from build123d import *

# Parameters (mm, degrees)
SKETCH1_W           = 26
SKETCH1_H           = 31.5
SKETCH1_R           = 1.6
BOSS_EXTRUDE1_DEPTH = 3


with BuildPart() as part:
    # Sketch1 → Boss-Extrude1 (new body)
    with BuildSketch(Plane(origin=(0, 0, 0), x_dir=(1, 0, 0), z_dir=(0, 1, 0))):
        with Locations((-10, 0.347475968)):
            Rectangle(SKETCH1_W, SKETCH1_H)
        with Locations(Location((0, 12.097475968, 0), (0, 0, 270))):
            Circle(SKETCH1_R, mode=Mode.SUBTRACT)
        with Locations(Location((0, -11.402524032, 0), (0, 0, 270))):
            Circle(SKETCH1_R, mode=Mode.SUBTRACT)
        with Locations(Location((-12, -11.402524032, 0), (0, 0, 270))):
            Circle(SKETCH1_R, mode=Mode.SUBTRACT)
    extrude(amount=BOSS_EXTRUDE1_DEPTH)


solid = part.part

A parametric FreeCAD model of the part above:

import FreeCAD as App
import Part
import Sketcher

V = App.Vector

doc = App.newDocument("Part")
body = doc.addObject("PartDesign::Body", "Body")

sketch1 = body.newObject("Sketcher::SketchObject", "Sketch")
sketch1.AttachmentSupport = (doc.getObject("XZ_Plane"), [""])
sketch1.MapMode = "FlatFace"
sketch1.addGeometry(Part.LineSegment(V(-23, -16.1, 0), V(-23, 15.4, 0)), False)
sketch1.addGeometry(Part.LineSegment(V(-23, 15.4, 0), V(3, 15.4, 0)), False)
sketch1.addGeometry(Part.LineSegment(V(3, 15.4, 0), V(3, -16.1, 0)), False)
sketch1.addGeometry(Part.LineSegment(V(3, -16.1, 0), V(-23, -16.1, 0)), False)
sketch1.addGeometry(Part.Circle(V(-12, 11.4, 0), V(0, 0, 1), 1.6), False)
sketch1.addGeometry(Part.Circle(V(0, 11.4, 0), V(0, 0, 1), 1.6), False)
sketch1.addGeometry(Part.Circle(V(0, -12.1, 0), V(0, 0, 1), 1.6), False)
sketch1.addConstraint(Sketcher.Constraint("Coincident", 0, 2, 1, 1))
sketch1.addConstraint(Sketcher.Constraint("Coincident", 1, 2, 2, 1))
sketch1.addConstraint(Sketcher.Constraint("Coincident", 2, 2, 3, 1))
sketch1.addConstraint(Sketcher.Constraint("Coincident", 3, 2, 0, 1))
sketch1.addConstraint(Sketcher.Constraint("Vertical", 0))
sketch1.addConstraint(Sketcher.Constraint("Horizontal", 1))
sketch1.addConstraint(Sketcher.Constraint("Vertical", 2))
sketch1.addConstraint(Sketcher.Constraint("Horizontal", 3))
sketch1.addConstraint(Sketcher.Constraint("Equal", 4, 5))
sketch1.addConstraint(Sketcher.Constraint("Equal", 5, 6))
sketch1.addConstraint(Sketcher.Constraint("PointOnObject", 5, 3, -2))
sketch1.addConstraint(Sketcher.Constraint("PointOnObject", 6, 3, -2))
sketch1.addConstraint(Sketcher.Constraint("Horizontal", 4, 3, 5, 3))
sketch1.addConstraint(Sketcher.Constraint("Diameter", 4, 3.2))
sketch1.addConstraint(Sketcher.Constraint("DistanceX", 1, 1, 1, 2, 26.0))
sketch1.addConstraint(Sketcher.Constraint("DistanceY", 0, 1, 0, 2, 31.5))
sketch1.addConstraint(Sketcher.Constraint("DistanceX", 4, 3, -1, 1, 12.0))
sketch1.addConstraint(Sketcher.Constraint("DistanceX", 0, 2, -1, 1, 23.0))
sketch1.addConstraint(Sketcher.Constraint("DistanceY", 4, 3, 0, 2, 4.0))
sketch1.addConstraint(Sketcher.Constraint("DistanceY", 2, 2, 6, 3, 4.0))
sketch1.addConstraint(Sketcher.Constraint("DistanceY", -1, 1, 4, 3, 11.402524))
pad1 = body.newObject("PartDesign::Pad", "Pad")
pad1.Profile = sketch1
pad1.Length = 3
pad1.Reversed = True

doc.recompute()
